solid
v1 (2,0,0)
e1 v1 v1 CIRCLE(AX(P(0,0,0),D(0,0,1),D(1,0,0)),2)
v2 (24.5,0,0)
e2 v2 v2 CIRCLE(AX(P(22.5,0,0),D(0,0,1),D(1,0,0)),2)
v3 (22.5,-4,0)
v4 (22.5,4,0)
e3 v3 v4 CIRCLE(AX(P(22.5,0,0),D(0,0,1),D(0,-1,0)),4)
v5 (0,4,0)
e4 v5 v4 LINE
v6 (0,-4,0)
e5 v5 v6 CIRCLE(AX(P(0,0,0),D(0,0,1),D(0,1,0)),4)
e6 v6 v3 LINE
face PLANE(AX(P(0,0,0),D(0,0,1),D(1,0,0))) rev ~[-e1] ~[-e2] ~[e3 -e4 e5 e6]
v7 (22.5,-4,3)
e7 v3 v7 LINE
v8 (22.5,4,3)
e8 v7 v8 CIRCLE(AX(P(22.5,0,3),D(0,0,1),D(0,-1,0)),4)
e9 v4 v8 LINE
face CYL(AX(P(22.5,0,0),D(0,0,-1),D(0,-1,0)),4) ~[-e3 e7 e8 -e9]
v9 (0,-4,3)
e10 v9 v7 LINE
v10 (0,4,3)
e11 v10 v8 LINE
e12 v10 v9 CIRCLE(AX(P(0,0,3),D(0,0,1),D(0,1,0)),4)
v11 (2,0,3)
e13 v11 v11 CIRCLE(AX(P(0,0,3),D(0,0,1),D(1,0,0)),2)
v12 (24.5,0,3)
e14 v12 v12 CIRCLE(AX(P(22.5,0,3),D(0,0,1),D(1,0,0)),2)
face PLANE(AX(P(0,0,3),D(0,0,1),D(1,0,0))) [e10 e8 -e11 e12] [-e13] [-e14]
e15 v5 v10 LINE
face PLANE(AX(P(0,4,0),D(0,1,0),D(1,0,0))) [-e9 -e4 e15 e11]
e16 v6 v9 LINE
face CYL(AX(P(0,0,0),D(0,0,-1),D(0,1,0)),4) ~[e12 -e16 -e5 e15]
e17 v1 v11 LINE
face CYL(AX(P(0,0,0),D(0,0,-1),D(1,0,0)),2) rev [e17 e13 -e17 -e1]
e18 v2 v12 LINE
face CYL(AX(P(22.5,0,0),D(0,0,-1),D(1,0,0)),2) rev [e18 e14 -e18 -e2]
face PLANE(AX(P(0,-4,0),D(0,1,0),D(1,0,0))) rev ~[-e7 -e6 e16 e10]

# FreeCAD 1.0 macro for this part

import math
import FreeCAD as App
import Part
import Sketcher

V = App.Vector

doc = App.newDocument("Part")
body = doc.addObject("PartDesign::Body", "Body")

# Sketch on XY plane
sketch1 = doc.addObject("Sketcher::SketchObject", "Sketch")
body.addObject(sketch1)
sketch1.AttachmentSupport = (doc.XY_Plane, [""])
sketch1.MapMode = "FlatFace"
sketch1.addGeometry(Part.LineSegment(V(22.5, 4, 0), V(0, 4, 0)), False)
sketch1.addGeometry(Part.ArcOfCircle(Part.Circle(V(0, 0, 0), V(0, 0, 1), 4), math.radians(90), math.radians(270)), False)
sketch1.addGeometry(Part.LineSegment(V(0, -4, 0), V(22.5, -4, 0)), False)
sketch1.addGeometry(Part.ArcOfCircle(Part.Circle(V(22.5, 0, 0), V(0, 0, 1), 4), math.radians(-90), math.radians(90)), False)
sketch1.addGeometry(Part.Circle(V(0, 0, 0), V(0, 0, 1), 2), False)
sketch1.addGeometry(Part.Circle(V(22.5, 0, 0), V(0, 0, 1), 2), False)
sketch1.addConstraint(Sketcher.Constraint("Tangent", 0, 2, 1, 1))
sketch1.addConstraint(Sketcher.Constraint("Tangent", 1, 2, 2, 1))
sketch1.addConstraint(Sketcher.Constraint("Tangent", 2, 2, 3, 1))
sketch1.addConstraint(Sketcher.Constraint("Tangent", 3, 2, 0, 1))
sketch1.addConstraint(Sketcher.Constraint("Horizontal", 0))
sketch1.addConstraint(Sketcher.Constraint("Horizontal", 2))
sketch1.addConstraint(Sketcher.Constraint("Coincident", 1, 3, -1, 1))
sketch1.addConstraint(Sketcher.Constraint("Coincident", 4, 3, -1, 1))
sketch1.addConstraint(Sketcher.Constraint("Coincident", 5, 3, 3, 3))
sketch1.addConstraint(Sketcher.Constraint("Equal", 4, 5))
sketch1.addConstraint(Sketcher.Constraint("Diameter", 4, 4.0))
sketch1.addConstraint(Sketcher.Constraint("Radius", 1, 4.0))
sketch1.addConstraint(Sketcher.Constraint("DistanceX", 0, 2, 0, 1, 22.5))
pad1 = doc.addObject("PartDesign::Pad", "Pad")
body.addObject(pad1)
pad1.Profile = sketch1
pad1.Length = 3

doc.recompute()
